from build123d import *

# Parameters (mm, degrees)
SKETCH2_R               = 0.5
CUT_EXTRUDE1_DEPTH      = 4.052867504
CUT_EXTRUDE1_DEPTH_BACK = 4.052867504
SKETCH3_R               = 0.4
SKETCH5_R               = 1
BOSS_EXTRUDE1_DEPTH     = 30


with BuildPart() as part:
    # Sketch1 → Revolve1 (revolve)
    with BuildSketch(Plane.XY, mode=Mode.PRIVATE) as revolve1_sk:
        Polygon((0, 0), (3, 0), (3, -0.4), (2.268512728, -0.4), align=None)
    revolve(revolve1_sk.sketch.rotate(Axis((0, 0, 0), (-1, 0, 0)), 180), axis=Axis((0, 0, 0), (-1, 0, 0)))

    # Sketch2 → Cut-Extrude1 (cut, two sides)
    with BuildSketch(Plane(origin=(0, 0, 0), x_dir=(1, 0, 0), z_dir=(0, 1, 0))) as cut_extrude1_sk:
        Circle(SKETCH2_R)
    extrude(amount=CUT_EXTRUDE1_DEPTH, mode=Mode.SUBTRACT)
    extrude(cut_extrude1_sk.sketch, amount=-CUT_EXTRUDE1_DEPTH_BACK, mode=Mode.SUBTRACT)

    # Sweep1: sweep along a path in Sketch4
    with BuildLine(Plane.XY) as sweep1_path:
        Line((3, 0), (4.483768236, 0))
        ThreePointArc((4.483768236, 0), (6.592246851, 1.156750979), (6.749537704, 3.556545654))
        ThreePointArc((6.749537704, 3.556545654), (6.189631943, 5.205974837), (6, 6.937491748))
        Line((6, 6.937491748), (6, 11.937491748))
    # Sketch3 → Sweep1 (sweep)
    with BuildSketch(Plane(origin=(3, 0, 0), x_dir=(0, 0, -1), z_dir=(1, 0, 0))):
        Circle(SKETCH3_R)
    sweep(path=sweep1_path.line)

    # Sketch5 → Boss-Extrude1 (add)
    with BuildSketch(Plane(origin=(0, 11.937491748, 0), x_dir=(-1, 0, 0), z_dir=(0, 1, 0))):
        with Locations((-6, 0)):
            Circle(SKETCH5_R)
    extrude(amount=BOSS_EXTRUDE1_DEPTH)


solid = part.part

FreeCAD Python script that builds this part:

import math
import FreeCAD as App
import Part
import Sketcher
from FreeCAD import Vector
Q = App.Units.Quantity

doc = App.newDocument("Part")
body = doc.addObject("PartDesign::Body", "Body")

sketch1 = body.newObject("Sketcher::SketchObject", "Sketch")
sketch1.AttachmentSupport = (doc.getObject("XY_Plane"), [""])
sketch1.MapMode = "FlatFace"
sketch1.addGeometry([
    Part.LineSegment(Vector(3, 0, 0), Vector(0, 0, 0)),
    Part.LineSegment(Vector(0, 0, 0), Vector(2.27, -0.4, 0)),
    Part.LineSegment(Vector(2.27, -0.4, 0), Vector(3, -0.4, 0)),
    Part.LineSegment(Vector(3, -0.4, 0), Vector(3, 0, 0)),
], False)
sketch1.addConstraint([
    Sketcher.Constraint("Coincident", 0, 2, 1, 1),
    Sketcher.Constraint("Coincident", 1, 2, 2, 1),
    Sketcher.Constraint("Coincident", 2, 2, 3, 1),
    Sketcher.Constraint("Coincident", 3, 2, 0, 1),
    Sketcher.Constraint("Horizontal", 0),
    Sketcher.Constraint("Horizontal", 2),
    Sketcher.Constraint("Vertical", 3),
    Sketcher.Constraint("Coincident", 0, 2, -1, 1),
    Sketcher.Constraint("DistanceX", 0, 2, 0, 1, 3.0),
    Sketcher.Constraint("Angle", 1, Q("-10 deg")),
    Sketcher.Constraint("DistanceY", 3, 1, 3, 2, 0.4),
])
revolution = body.newObject("PartDesign::Revolution", "Revolution")
revolution.Profile = sketch1
revolution.ReferenceAxis = (sketch1, ["H_Axis"])
revolution.Angle = 360

sketch2 = body.newObject("Sketcher::SketchObject", "Sketch001")
sketch2.AttachmentSupport = (doc.getObject("XZ_Plane"), [""])
sketch2.MapMode = "FlatFace"
sketch2.addGeometry(Part.Circle(Vector(0, 0, 0), Vector(0, 0, 1), 0.5), False)
sketch2.addConstraint([
    Sketcher.Constraint("Coincident", 0, 3, -1, 1),
    Sketcher.Constraint("Diameter", 0, 1.0),
])
pocket1 = body.newObject("PartDesign::Pocket", "Pocket")
pocket1.Profile = sketch2
pocket1.Type = "ThroughAll"
pocket1.Midplane = True

sketch3 = body.newObject("Sketcher::SketchObject", "Sketch002")
sketch3.AttachmentSupport = (doc.getObject("YZ_Plane"), [""])
sketch3.MapMode = "FlatFace"
sketch3.AttachmentOffset = App.Placement(Vector(0, 0, 3), App.Rotation())
sketch3.addGeometry(Part.Circle(Vector(0, 0, 0), Vector(0, 0, 1), 0.4), False)
sketch3.addConstraint([
    Sketcher.Constraint("Coincident", 0, 3, -1, 1),
    Sketcher.Constraint("Diameter", 0, 0.8),
])

sketch4 = body.newObject("Sketcher::SketchObject", "Sketch003")
sketch4.AttachmentSupport = (doc.getObject("XY_Plane"), [""])
sketch4.MapMode = "FlatFace"
sketch4.addGeometry([
    Part.LineSegment(Vector(3, 0, 0), Vector(4.5, 0, 0)),
    Part.ArcOfCircle(Part.Circle(Vector(4.5, 2.5, 0), Vector(0, 0, 1), 2.5), math.radians(-90), math.radians(25)),
    Part.ArcOfCircle(Part.Circle(Vector(14, 6.9, 0), Vector(0, 0, 1), 8), math.radians(180), math.radians(205)),
    Part.LineSegment(Vector(6, 6.9, 0), Vector(6, 11.9, 0)),
], False)
sketch4.addConstraint([
    Sketcher.Constraint("Tangent", 0, 2, 1, 1),
    Sketcher.Constraint("Tangent", 1, 2, 2, 2),
    Sketcher.Constraint("Tangent", 2, 1, 3, 1),
    Sketcher.Constraint("Horizontal", 0),
    Sketcher.Constraint("Vertical", 3),
    Sketcher.Constraint("PointOnObject", 0, 1, -1),
    Sketcher.Constraint("Radius", 2, 8.0),
    Sketcher.Constraint("Radius", 1, 2.5),
    Sketcher.Constraint("DistanceY", 3, 1, 3, 2, 5.0),
    Sketcher.Constraint("DistanceX", -1, 1, 2, 3, 14.0),
    Sketcher.Constraint("DistanceX", -1, 1, 0, 1, 3.0),
    Sketcher.Constraint("DistanceX", 0, 1, 0, 2, 1.483768),
])
doc.recompute()

additivepipe = body.newObject("PartDesign::AdditivePipe", "AdditivePipe")
additivepipe.Profile = sketch3
additivepipe.Spine = (sketch4, ["Edge1", "Edge2", "Edge3", "Edge4"])

sketch5 = body.newObject("Sketcher::SketchObject", "Sketch004")
sketch5.AttachmentSupport = (doc.getObject("XZ_Plane"), [""])
sketch5.MapMode = "FlatFace"
sketch5.AttachmentOffset = App.Placement(Vector(0, 0, -11.937492), App.Rotation())
sketch5.addGeometry(Part.Circle(Vector(6, 0, 0), Vector(0, 0, 1), 1), False)
sketch5.addConstraint([
    Sketcher.Constraint("PointOnObject", 0, 3, -1),
    Sketcher.Constraint("Diameter", 0, 2.0),
    Sketcher.Constraint("DistanceX", -1, 1, 0, 3, 6.0),
])
pad1 = body.newObject("PartDesign::Pad", "Pad")
pad1.Profile = sketch5
pad1.Length = 30
pad1.Reversed = True

doc.recompute()
